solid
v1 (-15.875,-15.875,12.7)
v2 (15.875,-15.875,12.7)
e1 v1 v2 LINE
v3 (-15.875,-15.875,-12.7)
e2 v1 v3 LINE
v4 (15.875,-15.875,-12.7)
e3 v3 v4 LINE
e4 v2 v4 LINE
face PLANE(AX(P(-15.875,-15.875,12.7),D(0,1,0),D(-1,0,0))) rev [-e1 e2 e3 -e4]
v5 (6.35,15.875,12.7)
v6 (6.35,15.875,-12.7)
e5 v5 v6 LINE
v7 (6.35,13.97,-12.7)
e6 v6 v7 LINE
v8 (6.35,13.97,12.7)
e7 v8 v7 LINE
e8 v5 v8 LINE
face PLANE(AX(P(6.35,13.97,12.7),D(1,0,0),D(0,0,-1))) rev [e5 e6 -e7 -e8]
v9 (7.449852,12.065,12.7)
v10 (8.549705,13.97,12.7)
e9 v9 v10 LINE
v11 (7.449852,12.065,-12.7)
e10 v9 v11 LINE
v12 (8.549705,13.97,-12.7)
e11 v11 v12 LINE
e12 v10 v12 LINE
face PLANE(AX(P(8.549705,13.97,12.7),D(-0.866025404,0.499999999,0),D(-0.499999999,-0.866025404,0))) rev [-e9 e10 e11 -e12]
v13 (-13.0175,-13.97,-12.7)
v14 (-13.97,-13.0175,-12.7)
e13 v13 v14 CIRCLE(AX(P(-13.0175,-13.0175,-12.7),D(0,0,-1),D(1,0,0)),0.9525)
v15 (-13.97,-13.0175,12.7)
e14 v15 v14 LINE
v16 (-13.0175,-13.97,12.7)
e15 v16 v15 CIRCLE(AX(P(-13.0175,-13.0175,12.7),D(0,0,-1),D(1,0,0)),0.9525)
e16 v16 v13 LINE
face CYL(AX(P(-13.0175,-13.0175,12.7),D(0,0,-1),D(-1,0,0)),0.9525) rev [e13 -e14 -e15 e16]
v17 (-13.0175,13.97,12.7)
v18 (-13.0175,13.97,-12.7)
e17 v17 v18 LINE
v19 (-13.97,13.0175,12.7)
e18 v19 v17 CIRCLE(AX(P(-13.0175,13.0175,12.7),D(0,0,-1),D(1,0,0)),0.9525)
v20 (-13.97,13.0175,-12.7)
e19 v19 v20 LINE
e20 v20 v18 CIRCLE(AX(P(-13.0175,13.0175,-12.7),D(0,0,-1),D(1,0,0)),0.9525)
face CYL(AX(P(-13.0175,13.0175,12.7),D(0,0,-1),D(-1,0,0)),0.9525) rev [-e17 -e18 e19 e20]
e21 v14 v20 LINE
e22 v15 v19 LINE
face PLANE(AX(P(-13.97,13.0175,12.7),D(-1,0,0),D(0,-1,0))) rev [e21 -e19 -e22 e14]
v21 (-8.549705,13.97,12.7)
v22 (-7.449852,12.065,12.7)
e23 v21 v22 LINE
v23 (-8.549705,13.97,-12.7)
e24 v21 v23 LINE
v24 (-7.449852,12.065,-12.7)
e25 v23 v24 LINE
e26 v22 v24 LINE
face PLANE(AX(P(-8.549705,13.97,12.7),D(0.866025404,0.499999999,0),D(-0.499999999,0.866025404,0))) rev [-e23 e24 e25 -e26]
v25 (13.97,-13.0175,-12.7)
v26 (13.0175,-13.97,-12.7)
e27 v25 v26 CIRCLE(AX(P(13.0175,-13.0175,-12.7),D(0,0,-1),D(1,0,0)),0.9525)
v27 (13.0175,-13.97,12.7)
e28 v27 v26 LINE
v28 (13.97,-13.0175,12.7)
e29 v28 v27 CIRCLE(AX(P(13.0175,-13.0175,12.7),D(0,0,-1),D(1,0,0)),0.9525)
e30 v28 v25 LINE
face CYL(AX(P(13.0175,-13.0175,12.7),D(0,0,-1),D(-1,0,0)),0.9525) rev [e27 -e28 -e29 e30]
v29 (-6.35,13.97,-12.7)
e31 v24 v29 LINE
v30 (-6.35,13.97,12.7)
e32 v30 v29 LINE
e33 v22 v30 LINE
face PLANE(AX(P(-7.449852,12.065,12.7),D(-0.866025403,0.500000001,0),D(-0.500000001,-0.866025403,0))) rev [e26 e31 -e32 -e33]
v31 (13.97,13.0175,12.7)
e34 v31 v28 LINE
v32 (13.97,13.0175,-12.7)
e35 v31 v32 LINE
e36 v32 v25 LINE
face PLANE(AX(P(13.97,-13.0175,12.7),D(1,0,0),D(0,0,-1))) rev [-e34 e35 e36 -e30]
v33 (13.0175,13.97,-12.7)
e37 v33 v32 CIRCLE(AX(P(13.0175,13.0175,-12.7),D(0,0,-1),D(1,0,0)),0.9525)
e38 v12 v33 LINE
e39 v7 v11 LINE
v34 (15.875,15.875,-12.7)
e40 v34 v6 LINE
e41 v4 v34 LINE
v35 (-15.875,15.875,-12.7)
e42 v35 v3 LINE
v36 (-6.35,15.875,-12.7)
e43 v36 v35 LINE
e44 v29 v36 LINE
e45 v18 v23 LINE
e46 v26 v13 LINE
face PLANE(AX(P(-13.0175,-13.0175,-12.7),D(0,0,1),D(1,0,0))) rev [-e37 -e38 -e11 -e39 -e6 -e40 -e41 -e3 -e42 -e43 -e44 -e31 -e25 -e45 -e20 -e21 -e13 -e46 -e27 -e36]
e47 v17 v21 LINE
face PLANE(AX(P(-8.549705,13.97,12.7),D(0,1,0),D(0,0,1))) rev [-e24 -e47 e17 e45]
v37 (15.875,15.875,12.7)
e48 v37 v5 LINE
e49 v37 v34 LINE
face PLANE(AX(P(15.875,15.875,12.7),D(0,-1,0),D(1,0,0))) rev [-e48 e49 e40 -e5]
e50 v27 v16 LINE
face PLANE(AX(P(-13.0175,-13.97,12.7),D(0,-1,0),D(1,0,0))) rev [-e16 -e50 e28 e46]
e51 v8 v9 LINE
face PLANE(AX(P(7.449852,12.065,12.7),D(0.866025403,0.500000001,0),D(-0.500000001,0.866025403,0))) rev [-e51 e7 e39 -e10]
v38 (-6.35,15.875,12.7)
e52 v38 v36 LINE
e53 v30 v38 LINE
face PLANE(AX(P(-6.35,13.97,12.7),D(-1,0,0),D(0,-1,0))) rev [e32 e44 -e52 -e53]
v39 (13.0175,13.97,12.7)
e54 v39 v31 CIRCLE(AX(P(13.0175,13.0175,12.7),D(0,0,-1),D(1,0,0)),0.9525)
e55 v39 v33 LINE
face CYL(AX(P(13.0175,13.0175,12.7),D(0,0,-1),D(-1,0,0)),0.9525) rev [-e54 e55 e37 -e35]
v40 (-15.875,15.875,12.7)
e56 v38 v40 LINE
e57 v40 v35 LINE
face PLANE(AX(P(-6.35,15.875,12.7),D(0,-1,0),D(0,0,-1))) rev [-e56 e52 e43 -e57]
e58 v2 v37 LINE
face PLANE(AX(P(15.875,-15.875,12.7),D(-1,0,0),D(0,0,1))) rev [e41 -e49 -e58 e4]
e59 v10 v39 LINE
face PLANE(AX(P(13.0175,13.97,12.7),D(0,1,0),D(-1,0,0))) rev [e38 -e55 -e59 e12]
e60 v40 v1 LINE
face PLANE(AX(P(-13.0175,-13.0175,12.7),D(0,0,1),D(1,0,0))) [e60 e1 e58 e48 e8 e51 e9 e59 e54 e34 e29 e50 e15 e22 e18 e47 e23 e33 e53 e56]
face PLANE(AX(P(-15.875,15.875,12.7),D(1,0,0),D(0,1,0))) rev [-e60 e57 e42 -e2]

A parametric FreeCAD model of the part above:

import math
import FreeCAD as App
import Part
import Sketcher

V = App.Vector
Q = App.Units.Quantity

doc = App.newDocument("Part")
body = doc.addObject("PartDesign::Body", "Body")

# Sketch on XY plane
sketch1 = body.newObject("Sketcher::SketchObject", "Sketch")
sketch1.AttachmentSupport = (doc.getObject("XY_Plane"), [""])
sketch1.MapMode = "FlatFace"
sketch1.addGeometry([
    Part.LineSegment(V(-6.3, 15.9, 0), V(-15.9, 15.9, 0)),  # 0
    Part.LineSegment(V(-15.9, 15.9, 0), V(-15.9, -15.9, 0)),  # 1
    Part.LineSegment(V(-15.9, -15.9, 0), V(15.9, -15.9, 0)),  # 2
    Part.LineSegment(V(15.9, -15.9, 0), V(15.9, 15.9, 0)),  # 3
    Part.LineSegment(V(15.9, 15.9, 0), V(6.3, 15.9, 0)),  # 4
    Part.LineSegment(V(6.3, 15.9, 0), V(6.3, 14, 0)),  # 5
    Part.LineSegment(V(6.3, 14, 0), V(7.4, 12.1, 0)),  # 6
    Part.LineSegment(V(7.4, 12.1, 0), V(8.5, 14, 0)),  # 7
    Part.LineSegment(V(8.5, 14, 0), V(13, 14, 0)),  # 8
    Part.ArcOfCircle(Part.Circle(V(13, 13, 0), V(0, 0, 1), 1), math.radians(0), math.radians(90)),  # 9
    Part.LineSegment(V(14, 13, 0), V(14, -13, 0)),  # 10
    Part.ArcOfCircle(Part.Circle(V(13, -13, 0), V(0, 0, 1), 1), math.radians(-90), math.radians(0)),  # 11
    Part.LineSegment(V(13, -14, 0), V(-13, -14, 0)),  # 12
    Part.ArcOfCircle(Part.Circle(V(-13, -13, 0), V(0, 0, 1), 1), math.radians(180), math.radians(270)),  # 13
    Part.LineSegment(V(-14, -13, 0), V(-14, 13, 0)),  # 14
    Part.ArcOfCircle(Part.Circle(V(-13, 13, 0), V(0, 0, 1), 1), math.radians(90), math.radians(180)),  # 15
    Part.LineSegment(V(-13, 14, 0), V(-8.5, 14, 0)),  # 16
    Part.LineSegment(V(-8.5, 14, 0), V(-7.4, 12.1, 0)),  # 17
    Part.LineSegment(V(-7.4, 12.1, 0), V(-6.3, 14, 0)),  # 18
    Part.LineSegment(V(-6.3, 14, 0), V(-6.3, 15.9, 0)),  # 19
], False)
sketch1.addConstraint([
    Sketcher.Constraint("Coincident", 0, 2, 1, 1),
    Sketcher.Constraint("Coincident", 1, 2, 2, 1),
    Sketcher.Constraint("Coincident", 2, 2, 3, 1),
    Sketcher.Constraint("Coincident", 3, 2, 4, 1),
    Sketcher.Constraint("Coincident", 4, 2, 5, 1),
    Sketcher.Constraint("Coincident", 5, 2, 6, 1),
    Sketcher.Constraint("Coincident", 6, 2, 7, 1),
    Sketcher.Constraint("Coincident", 7, 2, 8, 1),
    Sketcher.Constraint("Tangent", 8, 2, 9, 2),
    Sketcher.Constraint("Tangent", 9, 1, 10, 1),
    Sketcher.Constraint("Tangent", 10, 2, 11, 2),
    Sketcher.Constraint("Tangent", 11, 1, 12, 1),
    Sketcher.Constraint("Tangent", 12, 2, 13, 2),
    Sketcher.Constraint("Tangent", 13, 1, 14, 1),
    Sketcher.Constraint("Tangent", 14, 2, 15, 2),
    Sketcher.Constraint("Tangent", 15, 1, 16, 1),
    Sketcher.Constraint("Coincident", 16, 2, 17, 1),
    Sketcher.Constraint("Coincident", 17, 2, 18, 1),
    Sketcher.Constraint("Coincident", 18, 2, 19, 1),
    Sketcher.Constraint("Coincident", 19, 2, 0, 1),
    Sketcher.Constraint("Horizontal", 0),
    Sketcher.Constraint("Vertical", 1),
    Sketcher.Constraint("Horizontal", 2),
    Sketcher.Constraint("Vertical", 3),
    Sketcher.Constraint("Horizontal", 4),
    Sketcher.Constraint("Vertical", 5),
    Sketcher.Constraint("Horizontal", 8),
    Sketcher.Constraint("Vertical", 10),
    Sketcher.Constraint("Horizontal", 12),
    Sketcher.Constraint("Vertical", 14),
    Sketcher.Constraint("Horizontal", 16),
    Sketcher.Constraint("Vertical", 19),
    Sketcher.Constraint("Equal", 9, 11),
    Sketcher.Constraint("Equal", 11, 13),
    Sketcher.Constraint("Equal", 13, 15),
    Sketcher.Constraint("Symmetric", 9, 3, 13, 3, -1, 1),
    Sketcher.Constraint("Symmetric", 0, 2, 2, 2, -1, 1),
    Sketcher.Constraint("Symmetric", 7, 2, 16, 2, -2),
    Sketcher.Constraint("Symmetric", 6, 2, 17, 2, -2),
    Sketcher.Constraint("Symmetric", 5, 2, 18, 2, -2),
    Sketcher.Constraint("Parallel", 6, 17),
    Sketcher.Constraint("Horizontal", 0, 2, 3, 2),
    Sketcher.Constraint("Horizontal", 5, 2, 7, 2),
    Sketcher.Constraint("Equal", 2, 1),
    Sketcher.Constraint("Equal", 12, 10),
    Sketcher.Constraint("Angle", 6, Q("-60 deg")),
    Sketcher.Constraint("DistanceX", 2, 1, 2, 2, Q("1.25 in")),
    Sketcher.Constraint("Radius", 9, Q("0.0375 in")),
    Sketcher.Constraint("DistanceX", 14, 2, 5, 2, Q("0.8 in")),
    Sketcher.Constraint("DistanceX", 14, 2, 18, 2, Q("0.3 in")),
    Sketcher.Constraint("DistanceY", 6, 2, 4, 2, Q("0.15 in")),
])
pad1 = body.newObject("PartDesign::Pad", "Pad")
pad1.Profile = sketch1
pad1.Length = Q("1 in")
pad1.Midplane = True

doc.recompute()
